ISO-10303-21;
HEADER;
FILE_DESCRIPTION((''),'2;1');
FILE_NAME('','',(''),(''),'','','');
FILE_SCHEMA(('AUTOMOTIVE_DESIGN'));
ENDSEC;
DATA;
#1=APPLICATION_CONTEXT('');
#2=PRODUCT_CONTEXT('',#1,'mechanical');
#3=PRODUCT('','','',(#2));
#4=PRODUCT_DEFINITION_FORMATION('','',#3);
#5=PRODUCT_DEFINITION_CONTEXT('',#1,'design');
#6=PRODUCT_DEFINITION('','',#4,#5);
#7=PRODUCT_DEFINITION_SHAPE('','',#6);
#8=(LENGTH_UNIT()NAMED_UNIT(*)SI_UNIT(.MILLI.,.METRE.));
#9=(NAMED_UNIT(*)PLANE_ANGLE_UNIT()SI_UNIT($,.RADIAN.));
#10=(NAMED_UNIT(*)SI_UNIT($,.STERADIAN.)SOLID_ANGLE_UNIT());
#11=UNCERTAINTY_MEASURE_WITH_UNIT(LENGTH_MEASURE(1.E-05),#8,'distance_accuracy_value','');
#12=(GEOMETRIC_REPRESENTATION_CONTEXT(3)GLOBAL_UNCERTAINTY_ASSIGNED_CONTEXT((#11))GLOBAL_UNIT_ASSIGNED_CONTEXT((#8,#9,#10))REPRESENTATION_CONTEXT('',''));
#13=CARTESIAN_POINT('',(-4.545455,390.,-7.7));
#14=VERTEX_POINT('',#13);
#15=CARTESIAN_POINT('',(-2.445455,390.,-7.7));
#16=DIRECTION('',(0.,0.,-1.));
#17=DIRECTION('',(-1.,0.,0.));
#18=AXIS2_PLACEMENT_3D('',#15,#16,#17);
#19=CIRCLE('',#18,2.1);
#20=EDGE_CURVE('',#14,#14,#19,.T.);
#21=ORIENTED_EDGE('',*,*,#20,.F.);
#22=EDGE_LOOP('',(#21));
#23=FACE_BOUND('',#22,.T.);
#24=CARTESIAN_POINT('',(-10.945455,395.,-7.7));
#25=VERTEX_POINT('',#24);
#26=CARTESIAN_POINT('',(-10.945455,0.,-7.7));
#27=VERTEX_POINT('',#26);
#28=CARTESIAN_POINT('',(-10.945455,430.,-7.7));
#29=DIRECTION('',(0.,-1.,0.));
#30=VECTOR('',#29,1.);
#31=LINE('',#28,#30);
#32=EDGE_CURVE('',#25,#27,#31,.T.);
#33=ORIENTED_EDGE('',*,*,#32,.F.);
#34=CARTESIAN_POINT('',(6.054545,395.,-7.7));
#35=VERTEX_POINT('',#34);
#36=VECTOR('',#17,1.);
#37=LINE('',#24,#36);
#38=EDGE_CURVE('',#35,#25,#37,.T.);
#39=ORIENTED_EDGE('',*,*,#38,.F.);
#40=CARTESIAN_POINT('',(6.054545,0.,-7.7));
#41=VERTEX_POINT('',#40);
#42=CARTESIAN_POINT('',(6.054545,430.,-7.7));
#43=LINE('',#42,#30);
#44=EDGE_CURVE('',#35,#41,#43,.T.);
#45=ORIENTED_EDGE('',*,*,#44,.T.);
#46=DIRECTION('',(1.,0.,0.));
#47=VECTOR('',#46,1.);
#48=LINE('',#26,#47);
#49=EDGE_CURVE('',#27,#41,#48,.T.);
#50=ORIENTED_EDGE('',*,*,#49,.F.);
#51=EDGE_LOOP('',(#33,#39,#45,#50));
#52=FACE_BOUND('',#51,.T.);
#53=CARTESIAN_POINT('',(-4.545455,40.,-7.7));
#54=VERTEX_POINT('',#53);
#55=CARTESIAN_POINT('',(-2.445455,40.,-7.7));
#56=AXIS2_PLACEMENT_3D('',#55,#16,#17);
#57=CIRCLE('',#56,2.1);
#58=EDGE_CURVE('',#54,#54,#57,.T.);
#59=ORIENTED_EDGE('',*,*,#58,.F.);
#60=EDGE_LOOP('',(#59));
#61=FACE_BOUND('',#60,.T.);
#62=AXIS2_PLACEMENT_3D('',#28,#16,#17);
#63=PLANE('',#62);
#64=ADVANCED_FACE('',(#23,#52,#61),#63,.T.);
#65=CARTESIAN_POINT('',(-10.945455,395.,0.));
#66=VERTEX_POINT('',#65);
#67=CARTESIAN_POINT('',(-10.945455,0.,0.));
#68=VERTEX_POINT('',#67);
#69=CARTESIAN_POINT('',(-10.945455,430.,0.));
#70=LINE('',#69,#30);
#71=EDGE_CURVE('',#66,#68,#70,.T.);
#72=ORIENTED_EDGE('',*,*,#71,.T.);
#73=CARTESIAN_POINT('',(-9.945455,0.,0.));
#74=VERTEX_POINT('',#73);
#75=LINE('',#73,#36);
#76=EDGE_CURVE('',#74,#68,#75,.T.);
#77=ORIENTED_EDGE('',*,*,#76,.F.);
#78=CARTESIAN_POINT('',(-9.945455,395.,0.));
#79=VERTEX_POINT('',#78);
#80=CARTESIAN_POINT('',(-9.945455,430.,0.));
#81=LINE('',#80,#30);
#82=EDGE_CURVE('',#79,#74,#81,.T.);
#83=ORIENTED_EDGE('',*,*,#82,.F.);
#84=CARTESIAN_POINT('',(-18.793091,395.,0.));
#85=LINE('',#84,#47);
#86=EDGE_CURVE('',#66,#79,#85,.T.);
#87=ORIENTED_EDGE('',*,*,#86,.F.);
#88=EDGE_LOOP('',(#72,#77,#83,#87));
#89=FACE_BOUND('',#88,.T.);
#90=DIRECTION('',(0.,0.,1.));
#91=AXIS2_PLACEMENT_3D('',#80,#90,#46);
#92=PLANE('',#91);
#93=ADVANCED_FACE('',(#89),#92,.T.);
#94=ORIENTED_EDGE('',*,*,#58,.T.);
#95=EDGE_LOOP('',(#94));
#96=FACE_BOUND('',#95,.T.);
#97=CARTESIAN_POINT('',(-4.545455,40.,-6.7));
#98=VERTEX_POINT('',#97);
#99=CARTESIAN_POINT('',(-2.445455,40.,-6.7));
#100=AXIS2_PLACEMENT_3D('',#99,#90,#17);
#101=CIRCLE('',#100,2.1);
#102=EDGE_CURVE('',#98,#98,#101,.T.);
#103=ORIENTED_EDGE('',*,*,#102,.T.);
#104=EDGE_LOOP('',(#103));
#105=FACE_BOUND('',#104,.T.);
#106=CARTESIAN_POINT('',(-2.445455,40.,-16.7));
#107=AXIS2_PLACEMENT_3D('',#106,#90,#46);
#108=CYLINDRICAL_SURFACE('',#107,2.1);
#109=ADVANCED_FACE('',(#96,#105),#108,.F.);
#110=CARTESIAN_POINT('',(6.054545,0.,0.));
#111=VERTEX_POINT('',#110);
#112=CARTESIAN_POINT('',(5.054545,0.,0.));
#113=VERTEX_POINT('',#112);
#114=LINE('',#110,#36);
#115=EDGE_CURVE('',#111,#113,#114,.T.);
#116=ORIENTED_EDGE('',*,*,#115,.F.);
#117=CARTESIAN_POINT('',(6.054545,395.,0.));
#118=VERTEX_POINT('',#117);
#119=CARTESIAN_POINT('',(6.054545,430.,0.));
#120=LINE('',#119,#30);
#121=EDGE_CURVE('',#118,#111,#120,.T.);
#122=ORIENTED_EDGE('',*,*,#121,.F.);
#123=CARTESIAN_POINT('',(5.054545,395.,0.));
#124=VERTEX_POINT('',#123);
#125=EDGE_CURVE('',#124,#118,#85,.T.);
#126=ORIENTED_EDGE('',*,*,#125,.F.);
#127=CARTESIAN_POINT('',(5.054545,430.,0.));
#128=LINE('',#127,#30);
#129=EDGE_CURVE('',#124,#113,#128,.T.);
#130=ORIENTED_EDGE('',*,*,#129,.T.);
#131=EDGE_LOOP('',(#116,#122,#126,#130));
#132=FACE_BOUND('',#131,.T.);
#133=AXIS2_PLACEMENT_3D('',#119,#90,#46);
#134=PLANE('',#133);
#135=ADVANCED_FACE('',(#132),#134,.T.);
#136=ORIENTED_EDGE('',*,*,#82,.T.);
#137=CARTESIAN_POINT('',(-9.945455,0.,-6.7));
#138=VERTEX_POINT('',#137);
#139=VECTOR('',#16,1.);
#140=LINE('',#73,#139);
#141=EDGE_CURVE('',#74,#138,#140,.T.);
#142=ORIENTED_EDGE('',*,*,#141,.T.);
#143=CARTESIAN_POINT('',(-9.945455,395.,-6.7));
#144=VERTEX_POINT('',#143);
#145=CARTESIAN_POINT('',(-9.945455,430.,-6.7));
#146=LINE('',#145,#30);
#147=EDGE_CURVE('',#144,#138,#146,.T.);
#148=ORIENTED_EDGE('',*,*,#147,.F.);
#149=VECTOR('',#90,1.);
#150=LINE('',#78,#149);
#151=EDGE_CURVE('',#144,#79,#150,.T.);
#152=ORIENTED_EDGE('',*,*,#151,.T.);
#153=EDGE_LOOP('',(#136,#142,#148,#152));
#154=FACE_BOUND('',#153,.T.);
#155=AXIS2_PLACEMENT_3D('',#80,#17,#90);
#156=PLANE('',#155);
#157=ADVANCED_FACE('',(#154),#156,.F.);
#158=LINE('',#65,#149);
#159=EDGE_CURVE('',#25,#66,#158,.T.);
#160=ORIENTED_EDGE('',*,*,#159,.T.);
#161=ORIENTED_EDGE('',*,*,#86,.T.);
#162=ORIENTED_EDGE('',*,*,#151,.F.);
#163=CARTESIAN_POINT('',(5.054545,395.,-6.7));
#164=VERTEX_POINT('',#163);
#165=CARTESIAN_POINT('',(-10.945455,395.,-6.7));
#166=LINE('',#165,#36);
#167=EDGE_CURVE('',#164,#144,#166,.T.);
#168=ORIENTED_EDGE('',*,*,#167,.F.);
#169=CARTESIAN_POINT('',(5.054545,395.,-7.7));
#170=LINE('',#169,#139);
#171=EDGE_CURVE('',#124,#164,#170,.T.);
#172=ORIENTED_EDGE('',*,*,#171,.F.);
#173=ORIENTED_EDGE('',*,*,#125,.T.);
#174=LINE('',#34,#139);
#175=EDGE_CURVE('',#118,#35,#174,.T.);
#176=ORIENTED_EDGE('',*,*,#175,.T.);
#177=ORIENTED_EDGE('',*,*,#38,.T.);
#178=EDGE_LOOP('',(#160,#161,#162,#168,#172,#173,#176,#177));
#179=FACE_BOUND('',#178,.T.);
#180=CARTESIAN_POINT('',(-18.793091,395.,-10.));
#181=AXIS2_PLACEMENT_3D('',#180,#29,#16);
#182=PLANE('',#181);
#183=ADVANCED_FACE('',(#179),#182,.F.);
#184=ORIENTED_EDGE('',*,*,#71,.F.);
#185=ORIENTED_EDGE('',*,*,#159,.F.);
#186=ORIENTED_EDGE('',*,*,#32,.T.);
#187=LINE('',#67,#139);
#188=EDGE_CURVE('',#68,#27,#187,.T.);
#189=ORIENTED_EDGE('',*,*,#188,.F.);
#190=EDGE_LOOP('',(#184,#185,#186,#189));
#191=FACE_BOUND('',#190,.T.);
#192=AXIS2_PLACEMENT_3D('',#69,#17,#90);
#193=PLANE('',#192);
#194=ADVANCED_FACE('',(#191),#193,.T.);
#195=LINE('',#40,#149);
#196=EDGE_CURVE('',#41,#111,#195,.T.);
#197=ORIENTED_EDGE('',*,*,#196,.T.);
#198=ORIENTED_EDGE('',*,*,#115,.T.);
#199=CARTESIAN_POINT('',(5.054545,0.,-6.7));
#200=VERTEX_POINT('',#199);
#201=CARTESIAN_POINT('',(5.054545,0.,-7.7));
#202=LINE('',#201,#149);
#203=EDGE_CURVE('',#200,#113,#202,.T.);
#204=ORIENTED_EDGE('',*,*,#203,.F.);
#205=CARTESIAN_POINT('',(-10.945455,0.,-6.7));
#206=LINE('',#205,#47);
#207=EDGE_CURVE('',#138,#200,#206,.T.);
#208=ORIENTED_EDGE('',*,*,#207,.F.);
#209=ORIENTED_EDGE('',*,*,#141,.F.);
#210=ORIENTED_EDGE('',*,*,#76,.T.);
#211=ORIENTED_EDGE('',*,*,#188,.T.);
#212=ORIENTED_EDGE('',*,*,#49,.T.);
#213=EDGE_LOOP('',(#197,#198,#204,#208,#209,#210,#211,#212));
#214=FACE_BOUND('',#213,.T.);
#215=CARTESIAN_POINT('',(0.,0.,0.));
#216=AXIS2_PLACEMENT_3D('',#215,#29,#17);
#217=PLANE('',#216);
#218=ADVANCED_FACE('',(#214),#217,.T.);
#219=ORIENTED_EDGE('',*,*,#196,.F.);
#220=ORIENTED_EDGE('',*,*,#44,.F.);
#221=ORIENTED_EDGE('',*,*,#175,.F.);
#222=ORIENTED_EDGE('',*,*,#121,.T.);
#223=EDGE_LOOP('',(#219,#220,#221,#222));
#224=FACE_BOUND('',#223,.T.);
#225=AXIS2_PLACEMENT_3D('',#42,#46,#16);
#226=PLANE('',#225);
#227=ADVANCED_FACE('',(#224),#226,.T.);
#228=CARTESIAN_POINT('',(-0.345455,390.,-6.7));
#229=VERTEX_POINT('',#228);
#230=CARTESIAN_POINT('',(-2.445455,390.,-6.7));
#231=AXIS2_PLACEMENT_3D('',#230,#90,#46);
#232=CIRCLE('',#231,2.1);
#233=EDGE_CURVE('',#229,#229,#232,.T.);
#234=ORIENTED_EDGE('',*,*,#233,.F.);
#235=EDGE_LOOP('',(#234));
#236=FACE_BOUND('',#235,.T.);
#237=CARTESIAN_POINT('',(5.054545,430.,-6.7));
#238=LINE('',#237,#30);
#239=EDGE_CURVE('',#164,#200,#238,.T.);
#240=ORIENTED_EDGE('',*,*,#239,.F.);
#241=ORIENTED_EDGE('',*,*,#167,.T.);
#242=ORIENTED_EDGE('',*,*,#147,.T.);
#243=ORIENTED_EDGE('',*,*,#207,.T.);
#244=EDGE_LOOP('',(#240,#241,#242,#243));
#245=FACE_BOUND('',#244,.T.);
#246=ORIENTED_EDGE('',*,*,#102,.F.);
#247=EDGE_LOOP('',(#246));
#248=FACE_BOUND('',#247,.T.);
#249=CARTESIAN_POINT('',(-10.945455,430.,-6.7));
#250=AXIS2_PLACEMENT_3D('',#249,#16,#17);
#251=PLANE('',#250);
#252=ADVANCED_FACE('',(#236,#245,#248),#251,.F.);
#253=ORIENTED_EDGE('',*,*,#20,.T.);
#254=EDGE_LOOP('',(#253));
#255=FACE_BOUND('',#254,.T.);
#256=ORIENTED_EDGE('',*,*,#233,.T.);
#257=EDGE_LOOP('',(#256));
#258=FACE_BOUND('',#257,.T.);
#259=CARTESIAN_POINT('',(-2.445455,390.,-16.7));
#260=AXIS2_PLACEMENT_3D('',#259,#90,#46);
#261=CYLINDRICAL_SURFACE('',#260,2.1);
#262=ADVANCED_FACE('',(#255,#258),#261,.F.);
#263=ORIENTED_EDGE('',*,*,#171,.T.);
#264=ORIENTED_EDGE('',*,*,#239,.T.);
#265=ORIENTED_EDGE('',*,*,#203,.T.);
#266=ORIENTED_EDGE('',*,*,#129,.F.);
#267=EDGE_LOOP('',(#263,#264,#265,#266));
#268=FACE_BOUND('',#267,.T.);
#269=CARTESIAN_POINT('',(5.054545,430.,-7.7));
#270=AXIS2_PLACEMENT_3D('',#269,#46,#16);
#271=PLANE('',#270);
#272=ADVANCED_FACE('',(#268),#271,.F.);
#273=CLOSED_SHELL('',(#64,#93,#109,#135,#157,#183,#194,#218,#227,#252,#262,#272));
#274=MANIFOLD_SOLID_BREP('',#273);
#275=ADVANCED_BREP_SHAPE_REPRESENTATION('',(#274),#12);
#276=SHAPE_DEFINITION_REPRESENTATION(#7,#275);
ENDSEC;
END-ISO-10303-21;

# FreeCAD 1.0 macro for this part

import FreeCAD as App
import Part
import Sketcher

V = App.Vector
Q = App.Units.Quantity

doc = App.newDocument("Part")
params = doc.addObject("Spreadsheet::Sheet", "Params")
for row, (alias, value) in enumerate([
    ("sketch1_width", "1 mm"),
    ("sketch1_width2", "15 mm"),
    ("sketch1_height", "7.7 mm"),
    ("sketch1_height2", "6.7 mm"),
    ("pad1_length", "430 mm"),
    ("sketch2_diameter", "4.2 mm"),
    ("pocket1_length", "10 mm"),
    ("pocket2_length", "10 mm"),
], start=1):
    params.set(f"A{row}", alias)
    params.set(f"B{row}", "=" + value)
    params.setAlias(f"B{row}", alias)

body = doc.addObject("PartDesign::Body", "Body")

sketch1 = body.newObject("Sketcher::SketchObject", "Sketch")
sketch1.AttachmentSupport = (doc.getObject("XZ_Plane"), [""])
sketch1.MapMode = "FlatFace"
sketch1.addGeometry(Part.LineSegment(V(-10.9, -7.7, 0), V(-10.9, 0, 0)), False)
sketch1.addGeometry(Part.LineSegment(V(-10.9, 0, 0), V(-9.9, 0, 0)), False)
sketch1.addGeometry(Part.LineSegment(V(-9.9, 0, 0), V(-9.9, -6.7, 0)), False)
sketch1.addGeometry(Part.LineSegment(V(-9.9, -6.7, 0), V(5.1, -6.7, 0)), False)
sketch1.addGeometry(Part.LineSegment(V(5.1, -6.7, 0), V(5.1, 0, 0)), False)
sketch1.addGeometry(Part.LineSegment(V(5.1, 0, 0), V(6.1, 0, 0)), False)
sketch1.addGeometry(Part.LineSegment(V(6.1, 0, 0), V(6.1, -7.7, 0)), False)
sketch1.addGeometry(Part.LineSegment(V(6.1, -7.7, 0), V(-10.9, -7.7, 0)), False)
sketch1.addConstraint(Sketcher.Constraint("Coincident", 0, 2, 1, 1))
sketch1.addConstraint(Sketcher.Constraint("Coincident", 1, 2, 2, 1))
sketch1.addConstraint(Sketcher.Constraint("Coincident", 2, 2, 3, 1))
sketch1.addConstraint(Sketcher.Constraint("Coincident", 3, 2, 4, 1))
sketch1.addConstraint(Sketcher.Constraint("Coincident", 4, 2, 5, 1))
sketch1.addConstraint(Sketcher.Constraint("Coincident", 5, 2, 6, 1))
sketch1.addConstraint(Sketcher.Constraint("Coincident", 6, 2, 7, 1))
sketch1.addConstraint(Sketcher.Constraint("Coincident", 7, 2, 0, 1))
sketch1.addConstraint(Sketcher.Constraint("Vertical", 0))
sketch1.addConstraint(Sketcher.Constraint("Horizontal", 1))
sketch1.addConstraint(Sketcher.Constraint("Vertical", 2))
sketch1.addConstraint(Sketcher.Constraint("Horizontal", 3))
sketch1.addConstraint(Sketcher.Constraint("Vertical", 4))
sketch1.addConstraint(Sketcher.Constraint("Horizontal", 5))
sketch1.addConstraint(Sketcher.Constraint("Vertical", 6))
sketch1.addConstraint(Sketcher.Constraint("Horizontal", 7))
sketch1.addConstraint(Sketcher.Constraint("PointOnObject", 0, 2, -1))
sketch1.addConstraint(Sketcher.Constraint("PointOnObject", 4, 2, -1))
sketch1.addConstraint(Sketcher.Constraint("Equal", 1, 5))
sketch1.addConstraint(Sketcher.Constraint("DistanceX", 1, 1, 1, 2, Q("1 mm")))
sketch1.addConstraint(Sketcher.Constraint("DistanceX", 3, 1, 3, 2, Q("15 mm")))
sketch1.addConstraint(Sketcher.Constraint("DistanceY", 0, 1, 0, 2, Q("7.7 mm")))
sketch1.addConstraint(Sketcher.Constraint("DistanceY", 2, 2, 2, 1, Q("6.7 mm")))
sketch1.addConstraint(Sketcher.Constraint("DistanceX", 0, 2, -1, 1, Q("10.945455 mm")))
sketch1.setExpression("Constraints[19]", "Params.sketch1_width")
sketch1.setExpression("Constraints[20]", "Params.sketch1_width2")
sketch1.setExpression("Constraints[21]", "Params.sketch1_height")
sketch1.setExpression("Constraints[22]", "Params.sketch1_height2")
pad1 = body.newObject("PartDesign::Pad", "Pad")
pad1.Profile = sketch1
pad1.setExpression("Length", "Params.pad1_length")
pad1.Reversed = True

sketch2 = body.newObject("Sketcher::SketchObject", "Sketch001")
sketch2.AttachmentSupport = (doc.getObject("XY_Plane"), [""])
sketch2.MapMode = "FlatFace"
sketch2.AttachmentOffset = App.Placement(V(0, 0, -6.7), App.Rotation())
sketch2.addGeometry(Part.Circle(V(-2.4, 390, 0), V(0, 0, 1), 2.1), False)
sketch2.addGeometry(Part.Circle(V(-2.4, 40, 0), V(0, 0, 1), 2.1), False)
sketch2.addConstraint(Sketcher.Constraint("Equal", 0, 1))
sketch2.addConstraint(Sketcher.Constraint("Vertical", 0, 3, 1, 3))
sketch2.addConstraint(Sketcher.Constraint("Diameter", 0, Q("4.2 mm")))
sketch2.addConstraint(Sketcher.Constraint("DistanceY", -1, 1, 0, 3, Q("390 mm")))
sketch2.addConstraint(Sketcher.Constraint("DistanceY", -1, 1, 1, 3, Q("40 mm")))
sketch2.addConstraint(Sketcher.Constraint("DistanceX", 0, 3, -1, 1, Q("2.445455 mm")))
sketch2.setExpression("Constraints[2]", "Params.sketch2_diameter")
pocket1 = body.newObject("PartDesign::Pocket", "Pocket")
pocket1.Profile = sketch2
pocket1.setExpression("Length", "Params.pocket1_length")

sketch3 = body.newObject("Sketcher::SketchObject", "Sketch002")
sketch3.AttachmentSupport = (doc.getObject("XY_Plane"), [""])
sketch3.MapMode = "FlatFace"
sketch3.addGeometry(Part.LineSegment(V(-19, 438, 0), V(-19, 395, 0)), False)
sketch3.addGeometry(Part.LineSegment(V(-19, 395, 0), V(9, 395, 0)), False)
sketch3.addGeometry(Part.LineSegment(V(9, 395, 0), V(9, 438, 0)), False)
sketch3.addGeometry(Part.LineSegment(V(9, 438, 0), V(-19, 438, 0)), False)
sketch3.addConstraint(Sketcher.Constraint("Coincident", 0, 2, 1, 1))
sketch3.addConstraint(Sketcher.Constraint("Coincident", 1, 2, 2, 1))
sketch3.addConstraint(Sketcher.Constraint("Coincident", 2, 2, 3, 1))
sketch3.addConstraint(Sketcher.Constraint("Coincident", 3, 2, 0, 1))
sketch3.addConstraint(Sketcher.Constraint("Vertical", 0))
sketch3.addConstraint(Sketcher.Constraint("Horizontal", 1))
sketch3.addConstraint(Sketcher.Constraint("Vertical", 2))
sketch3.addConstraint(Sketcher.Constraint("Horizontal", 3))
sketch3.addConstraint(Sketcher.Constraint("DistanceY", -1, 1, 0, 2, Q("395 mm")))
sketch3.addConstraint(Sketcher.Constraint("DistanceY", 0, 2, 0, 1, Q("42.52675 mm")))
sketch3.addConstraint(Sketcher.Constraint("DistanceX", 1, 1, 1, 2, Q("27.877817 mm")))
sketch3.addConstraint(Sketcher.Constraint("DistanceX", 0, 2, -1, 1, Q("18.793091 mm")))
pocket2 = body.newObject("PartDesign::Pocket", "Pocket001")
pocket2.Profile = sketch3
pocket2.setExpression("Length", "Params.pocket2_length")

doc.recompute()
